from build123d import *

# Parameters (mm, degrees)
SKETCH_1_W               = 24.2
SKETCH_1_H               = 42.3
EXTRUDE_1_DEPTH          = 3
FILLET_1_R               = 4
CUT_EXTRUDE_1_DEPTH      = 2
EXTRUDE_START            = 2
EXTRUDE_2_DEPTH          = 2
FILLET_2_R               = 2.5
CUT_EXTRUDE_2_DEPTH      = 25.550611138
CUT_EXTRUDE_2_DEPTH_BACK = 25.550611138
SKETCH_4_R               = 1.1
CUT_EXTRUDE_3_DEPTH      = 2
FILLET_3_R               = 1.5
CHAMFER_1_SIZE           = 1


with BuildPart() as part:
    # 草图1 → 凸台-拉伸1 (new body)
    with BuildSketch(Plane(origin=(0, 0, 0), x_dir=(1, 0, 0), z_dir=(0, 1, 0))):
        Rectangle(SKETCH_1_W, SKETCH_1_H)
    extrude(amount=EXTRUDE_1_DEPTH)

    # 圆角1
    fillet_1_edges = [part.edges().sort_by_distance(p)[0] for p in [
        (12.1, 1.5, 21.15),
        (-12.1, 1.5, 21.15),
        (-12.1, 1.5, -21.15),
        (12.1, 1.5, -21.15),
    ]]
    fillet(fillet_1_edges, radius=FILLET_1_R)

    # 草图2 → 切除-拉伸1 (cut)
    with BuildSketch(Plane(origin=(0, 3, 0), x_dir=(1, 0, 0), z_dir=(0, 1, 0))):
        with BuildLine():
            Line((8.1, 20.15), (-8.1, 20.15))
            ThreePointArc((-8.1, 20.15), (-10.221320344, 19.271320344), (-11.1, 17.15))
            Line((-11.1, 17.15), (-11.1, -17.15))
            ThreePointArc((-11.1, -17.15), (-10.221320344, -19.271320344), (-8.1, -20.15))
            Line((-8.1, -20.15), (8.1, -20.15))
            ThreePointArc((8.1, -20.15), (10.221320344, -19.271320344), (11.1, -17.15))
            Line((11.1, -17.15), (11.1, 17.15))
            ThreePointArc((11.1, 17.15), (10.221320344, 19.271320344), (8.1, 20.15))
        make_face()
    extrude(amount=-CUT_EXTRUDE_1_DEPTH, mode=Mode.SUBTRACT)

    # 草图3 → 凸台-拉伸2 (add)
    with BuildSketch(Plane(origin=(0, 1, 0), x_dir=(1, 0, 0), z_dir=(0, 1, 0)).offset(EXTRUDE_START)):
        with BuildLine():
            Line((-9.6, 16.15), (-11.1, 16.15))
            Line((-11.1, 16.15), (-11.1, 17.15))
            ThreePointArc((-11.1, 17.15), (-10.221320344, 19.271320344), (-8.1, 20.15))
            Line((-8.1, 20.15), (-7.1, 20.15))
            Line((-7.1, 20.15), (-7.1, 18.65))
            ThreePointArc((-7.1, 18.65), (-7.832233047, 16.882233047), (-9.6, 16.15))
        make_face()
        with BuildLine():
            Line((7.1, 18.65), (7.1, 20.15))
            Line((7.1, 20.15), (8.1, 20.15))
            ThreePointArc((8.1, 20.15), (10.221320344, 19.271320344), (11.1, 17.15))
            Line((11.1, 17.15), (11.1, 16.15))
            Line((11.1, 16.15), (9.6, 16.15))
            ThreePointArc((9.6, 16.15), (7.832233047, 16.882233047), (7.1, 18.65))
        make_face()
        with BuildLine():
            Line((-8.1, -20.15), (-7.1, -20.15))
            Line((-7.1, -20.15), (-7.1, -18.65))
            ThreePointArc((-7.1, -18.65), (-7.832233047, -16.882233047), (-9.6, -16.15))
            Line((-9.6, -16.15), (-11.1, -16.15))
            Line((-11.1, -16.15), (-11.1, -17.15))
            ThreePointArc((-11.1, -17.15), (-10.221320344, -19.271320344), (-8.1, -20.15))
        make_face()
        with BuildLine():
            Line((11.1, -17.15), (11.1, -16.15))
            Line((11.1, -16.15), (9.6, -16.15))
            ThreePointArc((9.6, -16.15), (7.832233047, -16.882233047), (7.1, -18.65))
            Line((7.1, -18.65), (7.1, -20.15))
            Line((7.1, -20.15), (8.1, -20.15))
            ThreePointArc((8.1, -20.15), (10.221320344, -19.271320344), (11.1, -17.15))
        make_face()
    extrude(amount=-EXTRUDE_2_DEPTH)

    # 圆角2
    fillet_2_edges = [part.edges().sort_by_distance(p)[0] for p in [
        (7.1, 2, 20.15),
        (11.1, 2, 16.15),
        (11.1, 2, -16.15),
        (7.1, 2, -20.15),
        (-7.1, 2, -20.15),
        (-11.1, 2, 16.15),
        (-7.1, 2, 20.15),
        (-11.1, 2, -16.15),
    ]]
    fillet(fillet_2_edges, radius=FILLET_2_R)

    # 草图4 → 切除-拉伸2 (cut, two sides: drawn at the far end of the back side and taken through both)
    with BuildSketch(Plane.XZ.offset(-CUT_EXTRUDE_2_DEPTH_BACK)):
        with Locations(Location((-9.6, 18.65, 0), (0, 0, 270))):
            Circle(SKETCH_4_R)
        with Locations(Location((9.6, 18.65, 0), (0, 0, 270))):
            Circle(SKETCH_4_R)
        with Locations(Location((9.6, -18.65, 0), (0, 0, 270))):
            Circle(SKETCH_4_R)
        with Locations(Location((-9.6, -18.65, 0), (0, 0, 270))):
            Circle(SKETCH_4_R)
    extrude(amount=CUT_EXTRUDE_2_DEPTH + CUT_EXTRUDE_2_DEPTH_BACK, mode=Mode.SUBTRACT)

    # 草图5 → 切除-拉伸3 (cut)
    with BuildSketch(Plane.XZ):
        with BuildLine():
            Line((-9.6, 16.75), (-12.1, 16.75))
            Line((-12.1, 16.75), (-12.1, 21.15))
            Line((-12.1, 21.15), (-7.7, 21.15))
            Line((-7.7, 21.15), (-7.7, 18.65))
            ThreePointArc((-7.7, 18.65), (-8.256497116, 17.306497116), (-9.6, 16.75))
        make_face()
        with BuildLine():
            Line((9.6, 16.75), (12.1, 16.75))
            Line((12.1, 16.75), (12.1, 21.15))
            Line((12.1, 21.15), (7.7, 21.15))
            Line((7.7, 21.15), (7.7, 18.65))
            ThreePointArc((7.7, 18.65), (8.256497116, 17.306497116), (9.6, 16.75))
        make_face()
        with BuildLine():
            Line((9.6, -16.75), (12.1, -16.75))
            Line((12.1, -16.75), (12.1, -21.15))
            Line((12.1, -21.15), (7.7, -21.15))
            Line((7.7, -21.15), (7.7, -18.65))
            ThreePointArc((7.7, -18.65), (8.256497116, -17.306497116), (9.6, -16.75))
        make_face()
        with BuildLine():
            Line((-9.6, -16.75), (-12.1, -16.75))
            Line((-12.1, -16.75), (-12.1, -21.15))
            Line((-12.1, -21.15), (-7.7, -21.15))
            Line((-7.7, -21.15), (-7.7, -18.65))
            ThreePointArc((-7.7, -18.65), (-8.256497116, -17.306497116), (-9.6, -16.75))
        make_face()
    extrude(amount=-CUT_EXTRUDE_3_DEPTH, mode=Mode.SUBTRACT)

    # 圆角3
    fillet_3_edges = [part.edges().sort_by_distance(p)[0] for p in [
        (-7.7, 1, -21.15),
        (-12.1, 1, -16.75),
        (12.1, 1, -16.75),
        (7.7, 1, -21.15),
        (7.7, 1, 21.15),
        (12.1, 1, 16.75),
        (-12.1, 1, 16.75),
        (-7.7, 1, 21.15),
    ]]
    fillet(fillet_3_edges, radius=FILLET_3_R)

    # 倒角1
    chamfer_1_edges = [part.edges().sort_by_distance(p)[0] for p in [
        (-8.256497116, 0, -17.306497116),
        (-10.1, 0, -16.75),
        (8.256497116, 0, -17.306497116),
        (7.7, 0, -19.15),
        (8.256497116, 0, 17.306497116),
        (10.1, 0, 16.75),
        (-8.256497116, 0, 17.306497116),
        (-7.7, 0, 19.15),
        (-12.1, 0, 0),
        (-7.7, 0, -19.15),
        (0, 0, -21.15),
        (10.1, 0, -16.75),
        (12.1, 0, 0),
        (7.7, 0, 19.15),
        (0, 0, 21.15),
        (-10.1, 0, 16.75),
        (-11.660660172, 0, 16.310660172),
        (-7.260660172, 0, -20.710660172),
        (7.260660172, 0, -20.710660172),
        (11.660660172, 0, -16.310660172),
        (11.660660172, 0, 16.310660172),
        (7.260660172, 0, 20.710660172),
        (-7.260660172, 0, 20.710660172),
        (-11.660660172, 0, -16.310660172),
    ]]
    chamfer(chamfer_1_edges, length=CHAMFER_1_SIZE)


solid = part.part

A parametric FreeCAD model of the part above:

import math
import FreeCAD as App
import Part
import Sketcher
Q = App.Units.Quantity


def edges_at(feature, points):
    """Names of the edges that pass closest to the given points."""
    edges = feature.Shape.Edges
    near = lambda p: min(range(len(edges)), key=lambda i: edges[i].distToShape(Part.Vertex(*p))[0])
    return sorted({f"Edge{near(p) + 1}" for p in points})


def add_polygon(sketch, points):
    """Adds a closed chain of lines whose ends are joined by coincident constraints."""
    first, n = sketch.GeometryCount, len(points)
    for a, b in zip(points, points[1:] + points[:1]):
        sketch.addGeometry(Part.LineSegment(App.Vector(*a, 0), App.Vector(*b, 0)), False)
    for i in range(n):
        sketch.addConstraint(Sketcher.Constraint("Coincident", first + i, 2, first + (i + 1) % n, 1))

doc = App.newDocument("Part")
params = doc.addObject("Spreadsheet::Sheet", "Params")
for row, (alias, value) in enumerate([
    ("sketch1_width", "24.2 mm"),
    ("sketch1_height", "42.3 mm"),
    ("pad1_length", "3 mm"),
    ("fillet_radius", "4 mm"),
    ("sketch2_radius", "3 mm"),
    ("sketch2_width", "16.2 mm"),
    ("sketch2_height", "34.3 mm"),
    ("pocket1_length", "2 mm"),
    ("sketch3_radius", "3 mm"),
    ("sketch3_radius2", "2.5 mm"),
    ("sketch3_width", "1 mm"),
    ("pad2_length", "2 mm"),
    ("fillet2_radius", "2.5 mm"),
    ("sketch4_diameter", "2.2 mm"),
    ("sketch5_radius", "1.9 mm"),
    ("sketch5_width", "2.5 mm"),
    ("pocket3_length", "2 mm"),
    ("fillet3_radius", "1.5 mm"),
    ("chamfer_size", "1 mm"),
], start=1):
    params.set(f"A{row}", alias)
    params.set(f"B{row}", "=" + value)
    params.setAlias(f"B{row}", alias)

body = doc.addObject("PartDesign::Body", "Body")

# Sketch on XZ plane
sketch1 = body.newObject("Sketcher::SketchObject", "Sketch")
sketch1.AttachmentSupport = (doc.getObject("XZ_Plane"), [""])
sketch1.MapMode = "FlatFace"
add_polygon(sketch1, [(-12, -21), (-12, 21), (12, 21), (12, -21)])  # lines 0-3
sketch1.addConstraint(Sketcher.Constraint("Vertical", 0))
sketch1.addConstraint(Sketcher.Constraint("Horizontal", 1))
sketch1.addConstraint(Sketcher.Constraint("Vertical", 2))
sketch1.addConstraint(Sketcher.Constraint("Horizontal", 3))
sketch1.addConstraint(Sketcher.Constraint("Symmetric", 0, 2, 2, 2, -1, 1))
sketch1.addConstraint(Sketcher.Constraint("DistanceX", 1, 1, 1, 2, Q("24.2 mm")))
sketch1.addConstraint(Sketcher.Constraint("DistanceY", 0, 1, 0, 2, Q("42.3 mm")))
sketch1.setExpression("Constraints[9]", "Params.sketch1_width")
sketch1.setExpression("Constraints[10]", "Params.sketch1_height")
pad1 = body.newObject("PartDesign::Pad", "Pad")
pad1.Profile = sketch1
pad1.setExpression("Length", "Params.pad1_length")
pad1.Reversed = True
doc.recompute()

fillet = body.newObject("PartDesign::Fillet", "Fillet")
fillet.Base = (pad1, edges_at(pad1, [
    (12.1, 1.5, 21.15),
    (-12.1, 1.5, 21.15),
    (-12.1, 1.5, -21.15),
    (12.1, 1.5, -21.15),
]))
fillet.setExpression("Radius", "Params.fillet_radius")

# Sketch on XZ plane
sketch2 = body.newObject("Sketcher::SketchObject", "Sketch001")
sketch2.AttachmentSupport = (doc.getObject("XZ_Plane"), [""])
sketch2.MapMode = "FlatFace"
sketch2.AttachmentOffset = App.Placement(App.Vector(0, 0, -3), App.Rotation())
sketch2.addGeometry(Part.LineSegment(App.Vector(8.1, -20.1, 0), App.Vector(-8.1, -20.1, 0)), False)
sketch2.addGeometry(Part.ArcOfCircle(Part.Circle(App.Vector(-8.1, -17.2, 0), App.Vector(0, 0, 1), 3), math.radians(180), math.radians(270)), False)
sketch2.addGeometry(Part.LineSegment(App.Vector(-11.1, -17.1, 0), App.Vector(-11.1, 17.1, 0)), False)
sketch2.addGeometry(Part.ArcOfCircle(Part.Circle(App.Vector(-8.1, 17.2, 0), App.Vector(0, 0, 1), 3), math.radians(90), math.radians(180)), False)
sketch2.addGeometry(Part.LineSegment(App.Vector(-8.1, 20.1, 0), App.Vector(8.1, 20.1, 0)), False)
sketch2.addGeometry(Part.ArcOfCircle(Part.Circle(App.Vector(8.1, 17.2, 0), App.Vector(0, 0, 1), 3), math.radians(0), math.radians(90)), False)
sketch2.addGeometry(Part.LineSegment(App.Vector(11.1, 17.1, 0), App.Vector(11.1, -17.1, 0)), False)
sketch2.addGeometry(Part.ArcOfCircle(Part.Circle(App.Vector(8.1, -17.2, 0), App.Vector(0, 0, 1), 3), math.radians(-90), math.radians(0)), False)
sketch2.addConstraint(Sketcher.Constraint("Tangent", 0, 2, 1, 2))
sketch2.addConstraint(Sketcher.Constraint("Tangent", 1, 1, 2, 1))
sketch2.addConstraint(Sketcher.Constraint("Tangent", 2, 2, 3, 2))
sketch2.addConstraint(Sketcher.Constraint("Tangent", 3, 1, 4, 1))
sketch2.addConstraint(Sketcher.Constraint("Tangent", 4, 2, 5, 2))
sketch2.addConstraint(Sketcher.Constraint("Tangent", 5, 1, 6, 1))
sketch2.addConstraint(Sketcher.Constraint("Tangent", 6, 2, 7, 2))
sketch2.addConstraint(Sketcher.Constraint("Tangent", 7, 1, 0, 1))
sketch2.addConstraint(Sketcher.Constraint("Horizontal", 0))
sketch2.addConstraint(Sketcher.Constraint("Vertical", 2))
sketch2.addConstraint(Sketcher.Constraint("Horizontal", 4))
sketch2.addConstraint(Sketcher.Constraint("Vertical", 6))
sketch2.addConstraint(Sketcher.Constraint("Equal", 1, 3))
sketch2.addConstraint(Sketcher.Constraint("Equal", 3, 5))
sketch2.addConstraint(Sketcher.Constraint("Equal", 5, 7))
sketch2.addConstraint(Sketcher.Constraint("Symmetric", 1, 3, 5, 3, -1, 1))
sketch2.addConstraint(Sketcher.Constraint("Radius", 1, Q("3 mm")))
sketch2.addConstraint(Sketcher.Constraint("DistanceX", 0, 2, 0, 1, Q("16.2 mm")))
sketch2.addConstraint(Sketcher.Constraint("DistanceY", 2, 1, 2, 2, Q("34.3 mm")))
sketch2.setExpression("Constraints[16]", "Params.sketch2_radius")
sketch2.setExpression("Constraints[17]", "Params.sketch2_width")
sketch2.setExpression("Constraints[18]", "Params.sketch2_height")
pocket1 = body.newObject("PartDesign::Pocket", "Pocket")
pocket1.Profile = sketch2
pocket1.setExpression("Length", "Params.pocket1_length")
pocket1.Reversed = True

# Sketch on XZ plane
sketch3 = body.newObject("Sketcher::SketchObject", "Sketch002")
sketch3.AttachmentSupport = (doc.getObject("XZ_Plane"), [""])
sketch3.MapMode = "FlatFace"
sketch3.AttachmentOffset = App.Placement(App.Vector(0, 0, -3), App.Rotation())
sketch3.addGeometry(Part.LineSegment(App.Vector(-11.1, -16.1, 0), App.Vector(-9.6, -16.1, 0)), False)
sketch3.addGeometry(Part.ArcOfCircle(Part.Circle(App.Vector(-9.6, -18.6, 0), App.Vector(0, 0, 1), 2.5), math.radians(0), math.radians(90)), False)
sketch3.addGeometry(Part.LineSegment(App.Vector(-7.1, -18.6, 0), App.Vector(-7.1, -20.1, 0)), False)
sketch3.addGeometry(Part.LineSegment(App.Vector(-7.1, -20.1, 0), App.Vector(-8.1, -20.1, 0)), False)
sketch3.addGeometry(Part.ArcOfCircle(Part.Circle(App.Vector(-8.1, -17.2, 0), App.Vector(0, 0, 1), 3), math.radians(180), math.radians(270)), False)
sketch3.addGeometry(Part.LineSegment(App.Vector(-11.1, -17.1, 0), App.Vector(-11.1, -16.1, 0)), False)
sketch3.addGeometry(Part.LineSegment(App.Vector(7.1, -20.1, 0), App.Vector(7.1, -18.6, 0)), False)
sketch3.addGeometry(Part.ArcOfCircle(Part.Circle(App.Vector(9.6, -18.6, 0), App.Vector(0, 0, 1), 2.5), math.radians(90), math.radians(180)), False)
sketch3.addGeometry(Part.LineSegment(App.Vector(9.6, -16.1, 0), App.Vector(11.1, -16.1, 0)), False)
sketch3.addGeometry(Part.LineSegment(App.Vector(11.1, -16.1, 0), App.Vector(11.1, -17.1, 0)), False)
sketch3.addGeometry(Part.ArcOfCircle(Part.Circle(App.Vector(8.1, -17.2, 0), App.Vector(0, 0, 1), 3), math.radians(-90), math.radians(0)), False)
sketch3.addGeometry(Part.LineSegment(App.Vector(8.1, -20.1, 0), App.Vector(7.1, -20.1, 0)), False)
sketch3.addGeometry(Part.LineSegment(App.Vector(-8.1, 20.1, 0), App.Vector(-7.1, 20.1, 0)), False)
sketch3.addGeometry(Part.LineSegment(App.Vector(-7.1, 20.1, 0), App.Vector(-7.1, 18.6, 0)), False)
sketch3.addGeometry(Part.ArcOfCircle(Part.Circle(App.Vector(-9.6, 18.6, 0), App.Vector(0, 0, 1), 2.5), math.radians(-90), math.radians(0)), False)
sketch3.addGeometry(Part.LineSegment(App.Vector(-9.6, 16.1, 0), App.Vector(-11.1, 16.1, 0)), False)
sketch3.addGeometry(Part.LineSegment(App.Vector(-11.1, 16.1, 0), App.Vector(-11.1, 17.1, 0)), False)
sketch3.addGeometry(Part.ArcOfCircle(Part.Circle(App.Vector(-8.1, 17.2, 0), App.Vector(0, 0, 1), 3), math.radians(90), math.radians(180)), False)
sketch3.addGeometry(Part.LineSegment(App.Vector(11.1, 17.1, 0), App.Vector(11.1, 16.1, 0)), False)
sketch3.addGeometry(Part.LineSegment(App.Vector(11.1, 16.1, 0), App.Vector(9.6, 16.1, 0)), False)
sketch3.addGeometry(Part.ArcOfCircle(Part.Circle(App.Vector(9.6, 18.6, 0), App.Vector(0, 0, 1), 2.5), math.radians(180), math.radians(270)), False)
sketch3.addGeometry(Part.LineSegment(App.Vector(7.1, 18.6, 0), App.Vector(7.1, 20.1, 0)), False)
sketch3.addGeometry(Part.LineSegment(App.Vector(7.1, 20.1, 0), App.Vector(8.1, 20.1, 0)), False)
sketch3.addGeometry(Part.ArcOfCircle(Part.Circle(App.Vector(8.1, 17.2, 0), App.Vector(0, 0, 1), 3), math.radians(0), math.radians(90)), False)
sketch3.addConstraint(Sketcher.Constraint("Tangent", 0, 2, 1, 2))
sketch3.addConstraint(Sketcher.Constraint("Tangent", 1, 1, 2, 1))
sketch3.addConstraint(Sketcher.Constraint("Coincident", 2, 2, 3, 1))
sketch3.addConstraint(Sketcher.Constraint("Tangent", 3, 2, 4, 2))
sketch3.addConstraint(Sketcher.Constraint("Tangent", 4, 1, 5, 1))
sketch3.addConstraint(Sketcher.Constraint("Coincident", 5, 2, 0, 1))
sketch3.addConstraint(Sketcher.Constraint("Tangent", 6, 2, 7, 2))
sketch3.addConstraint(Sketcher.Constraint("Tangent", 7, 1, 8, 1))
sketch3.addConstraint(Sketcher.Constraint("Coincident", 8, 2, 9, 1))
sketch3.addConstraint(Sketcher.Constraint("Tangent", 9, 2, 10, 2))
sketch3.addConstraint(Sketcher.Constraint("Tangent", 10, 1, 11, 1))
sketch3.addConstraint(Sketcher.Constraint("Coincident", 11, 2, 6, 1))
sketch3.addConstraint(Sketcher.Constraint("Coincident", 12, 2, 13, 1))
sketch3.addConstraint(Sketcher.Constraint("Tangent", 13, 2, 14, 2))
sketch3.addConstraint(Sketcher.Constraint("Tangent", 14, 1, 15, 1))
sketch3.addConstraint(Sketcher.Constraint("Coincident", 15, 2, 16, 1))
sketch3.addConstraint(Sketcher.Constraint("Tangent", 16, 2, 17, 2))
sketch3.addConstraint(Sketcher.Constraint("Tangent", 17, 1, 12, 1))
sketch3.addConstraint(Sketcher.Constraint("Coincident", 18, 2, 19, 1))
sketch3.addConstraint(Sketcher.Constraint("Tangent", 19, 2, 20, 2))
sketch3.addConstraint(Sketcher.Constraint("Tangent", 20, 1, 21, 1))
sketch3.addConstraint(Sketcher.Constraint("Coincident", 21, 2, 22, 1))
sketch3.addConstraint(Sketcher.Constraint("Tangent", 22, 2, 23, 2))
sketch3.addConstraint(Sketcher.Constraint("Tangent", 23, 1, 18, 1))
sketch3.addConstraint(Sketcher.Constraint("Horizontal", 0))
sketch3.addConstraint(Sketcher.Constraint("Vertical", 2))
sketch3.addConstraint(Sketcher.Constraint("Horizontal", 3))
sketch3.addConstraint(Sketcher.Constraint("Vertical", 5))
sketch3.addConstraint(Sketcher.Constraint("Vertical", 6))
sketch3.addConstraint(Sketcher.Constraint("Horizontal", 8))
sketch3.addConstraint(Sketcher.Constraint("Vertical", 9))
sketch3.addConstraint(Sketcher.Constraint("Horizontal", 11))
sketch3.addConstraint(Sketcher.Constraint("Horizontal", 12))
sketch3.addConstraint(Sketcher.Constraint("Vertical", 13))
sketch3.addConstraint(Sketcher.Constraint("Horizontal", 15))
sketch3.addConstraint(Sketcher.Constraint("Vertical", 16))
sketch3.addConstraint(Sketcher.Constraint("Vertical", 18))
sketch3.addConstraint(Sketcher.Constraint("Horizontal", 19))
sketch3.addConstraint(Sketcher.Constraint("Vertical", 21))
sketch3.addConstraint(Sketcher.Constraint("Horizontal", 22))
sketch3.addConstraint(Sketcher.Constraint("Equal", 1, 7))
sketch3.addConstraint(Sketcher.Constraint("Equal", 4, 10))
sketch3.addConstraint(Sketcher.Constraint("Equal", 7, 14))
sketch3.addConstraint(Sketcher.Constraint("Equal", 10, 17))
sketch3.addConstraint(Sketcher.Constraint("Equal", 14, 20))
sketch3.addConstraint(Sketcher.Constraint("Equal", 17, 23))
sketch3.addConstraint(Sketcher.Constraint("Symmetric", 7, 3, 14, 3, -1, 1))
sketch3.addConstraint(Sketcher.Constraint("Symmetric", 10, 3, 17, 3, -1, 1))
sketch3.addConstraint(Sketcher.Constraint("Symmetric", 1, 3, 20, 3, -1, 1))
sketch3.addConstraint(Sketcher.Constraint("Symmetric", 4, 3, 23, 3, -1, 1))
sketch3.addConstraint(Sketcher.Constraint("Symmetric", 1, 3, 7, 3, -2))
sketch3.addConstraint(Sketcher.Constraint("Symmetric", 4, 3, 10, 3, -2))
sketch3.addConstraint(Sketcher.Constraint("Equal", 19, 2))
sketch3.addConstraint(Sketcher.Constraint("Radius", 4, Q("3 mm")))
sketch3.addConstraint(Sketcher.Constraint("Radius", 1, Q("2.5 mm")))
sketch3.addConstraint(Sketcher.Constraint("DistanceX", 3, 2, 3, 1, Q("1 mm")))
sketch3.addConstraint(Sketcher.Constraint("DistanceX", 1, 3, -1, 1, Q("9.6 mm")))
sketch3.addConstraint(Sketcher.Constraint("DistanceY", 4, 3, 14, 3, Q("35.8 mm")))
sketch3.setExpression("Constraints[53]", "Params.sketch3_radius")
sketch3.setExpression("Constraints[54]", "Params.sketch3_radius2")
sketch3.setExpression("Constraints[55]", "Params.sketch3_width")
pad2 = body.newObject("PartDesign::Pad", "Pad001")
pad2.Profile = sketch3
pad2.setExpression("Length", "Params.pad2_length")
doc.recompute()

fillet2 = body.newObject("PartDesign::Fillet", "Fillet001")
fillet2.Base = (pad2, edges_at(pad2, [
    (7.1, 2, 20.15),
    (11.1, 2, 16.15),
    (11.1, 2, -16.15),
    (7.1, 2, -20.15),
    (-7.1, 2, -20.15),
    (-11.1, 2, 16.15),
    (-7.1, 2, 20.15),
    (-11.1, 2, -16.15),
]))
fillet2.setExpression("Radius", "Params.fillet2_radius")

# Sketch on XZ plane
sketch4 = body.newObject("Sketcher::SketchObject", "Sketch003")
sketch4.AttachmentSupport = (doc.getObject("XZ_Plane"), [""])
sketch4.MapMode = "FlatFace"
sketch4.addGeometry(Part.Circle(App.Vector(-9.6, 18.6, 0), App.Vector(0, 0, 1), 1.1), False)
sketch4.addGeometry(Part.Circle(App.Vector(9.6, 18.6, 0), App.Vector(0, 0, 1), 1.1), False)
sketch4.addGeometry(Part.Circle(App.Vector(9.6, -18.6, 0), App.Vector(0, 0, 1), 1.1), False)
sketch4.addGeometry(Part.Circle(App.Vector(-9.6, -18.6, 0), App.Vector(0, 0, 1), 1.1), False)
sketch4.addConstraint(Sketcher.Constraint("Equal", 0, 1))
sketch4.addConstraint(Sketcher.Constraint("Equal", 1, 2))
sketch4.addConstraint(Sketcher.Constraint("Equal", 2, 3))
sketch4.addConstraint(Sketcher.Constraint("Symmetric", 0, 3, 2, 3, -1, 1))
sketch4.addConstraint(Sketcher.Constraint("Symmetric", 1, 3, 3, 3, -1, 1))
sketch4.addConstraint(Sketcher.Constraint("Symmetric", 0, 3, 1, 3, -2))
sketch4.addConstraint(Sketcher.Constraint("Diameter", 0, Q("2.2 mm")))
sketch4.addConstraint(Sketcher.Constraint("DistanceX", 0, 3, -1, 1, Q("9.6 mm")))
sketch4.addConstraint(Sketcher.Constraint("DistanceY", 2, 3, 1, 3, Q("37.3 mm")))
sketch4.setExpression("Constraints[6]", "Params.sketch4_diameter")
pocket2 = body.newObject("PartDesign::Pocket", "Pocket001")
pocket2.Profile = sketch4
pocket2.Type = "ThroughAll"
pocket2.Midplane = True

# Sketch on XZ plane
sketch5 = body.newObject("Sketcher::SketchObject", "Sketch004")
sketch5.AttachmentSupport = (doc.getObject("XZ_Plane"), [""])
sketch5.MapMode = "FlatFace"
sketch5.addGeometry(Part.LineSegment(App.Vector(-12.1, 16.8, 0), App.Vector(-9.6, 16.8, 0)), False)
sketch5.addGeometry(Part.ArcOfCircle(Part.Circle(App.Vector(-9.6, 18.7, 0), App.Vector(0, 0, 1), 1.9), math.radians(-90), math.radians(0)), False)
sketch5.addGeometry(Part.LineSegment(App.Vector(-7.7, 18.6, 0), App.Vector(-7.7, 21.1, 0)), False)
sketch5.addGeometry(Part.LineSegment(App.Vector(-7.7, 21.1, 0), App.Vector(-12.1, 21.1, 0)), False)
sketch5.addGeometry(Part.LineSegment(App.Vector(-12.1, 21.1, 0), App.Vector(-12.1, 16.8, 0)), False)
sketch5.addGeometry(Part.LineSegment(App.Vector(9.6, 16.8, 0), App.Vector(12.1, 16.8, 0)), False)
sketch5.addGeometry(Part.LineSegment(App.Vector(12.1, 16.8, 0), App.Vector(12.1, 21.1, 0)), False)
sketch5.addGeometry(Part.LineSegment(App.Vector(12.1, 21.1, 0), App.Vector(7.7, 21.1, 0)), False)
sketch5.addGeometry(Part.LineSegment(App.Vector(7.7, 21.1, 0), App.Vector(7.7, 18.6, 0)), False)
sketch5.addGeometry(Part.ArcOfCircle(Part.Circle(App.Vector(9.6, 18.7, 0), App.Vector(0, 0, 1), 1.9), math.radians(-180), math.radians(-90)), False)
sketch5.addGeometry(Part.LineSegment(App.Vector(12.1, -16.8, 0), App.Vector(9.6, -16.8, 0)), False)
sketch5.addGeometry(Part.ArcOfCircle(Part.Circle(App.Vector(9.6, -18.7, 0), App.Vector(0, 0, 1), 1.9), math.radians(90), math.radians(180)), False)
sketch5.addGeometry(Part.LineSegment(App.Vector(7.7, -18.6, 0), App.Vector(7.7, -21.1, 0)), False)
sketch5.addGeometry(Part.LineSegment(App.Vector(7.7, -21.1, 0), App.Vector(12.1, -21.1, 0)), False)
sketch5.addGeometry(Part.LineSegment(App.Vector(12.1, -21.1, 0), App.Vector(12.1, -16.8, 0)), False)
sketch5.addGeometry(Part.LineSegment(App.Vector(-9.6, -16.8, 0), App.Vector(-12.1, -16.8, 0)), False)
sketch5.addGeometry(Part.LineSegment(App.Vector(-12.1, -16.8, 0), App.Vector(-12.1, -21.1, 0)), False)
sketch5.addGeometry(Part.LineSegment(App.Vector(-12.1, -21.1, 0), App.Vector(-7.7, -21.1, 0)), False)
sketch5.addGeometry(Part.LineSegment(App.Vector(-7.7, -21.1, 0), App.Vector(-7.7, -18.6, 0)), False)
sketch5.addGeometry(Part.ArcOfCircle(Part.Circle(App.Vector(-9.6, -18.7, 0), App.Vector(0, 0, 1), 1.9), math.radians(0), math.radians(90)), False)
sketch5.addConstraint(Sketcher.Constraint("Tangent", 0, 2, 1, 1))
sketch5.addConstraint(Sketcher.Constraint("Tangent", 1, 2, 2, 1))
sketch5.addConstraint(Sketcher.Constraint("Coincident", 2, 2, 3, 1))
sketch5.addConstraint(Sketcher.Constraint("Coincident", 3, 2, 4, 1))
sketch5.addConstraint(Sketcher.Constraint("Coincident", 4, 2, 0, 1))
sketch5.addConstraint(Sketcher.Constraint("Coincident", 5, 2, 6, 1))
sketch5.addConstraint(Sketcher.Constraint("Coincident", 6, 2, 7, 1))
sketch5.addConstraint(Sketcher.Constraint("Coincident", 7, 2, 8, 1))
sketch5.addConstraint(Sketcher.Constraint("Tangent", 8, 2, 9, 1))
sketch5.addConstraint(Sketcher.Constraint("Tangent", 9, 2, 5, 1))
sketch5.addConstraint(Sketcher.Constraint("Tangent", 10, 2, 11, 1))
sketch5.addConstraint(Sketcher.Constraint("Tangent", 11, 2, 12, 1))
sketch5.addConstraint(Sketcher.Constraint("Coincident", 12, 2, 13, 1))
sketch5.addConstraint(Sketcher.Constraint("Coincident", 13, 2, 14, 1))
sketch5.addConstraint(Sketcher.Constraint("Coincident", 14, 2, 10, 1))
sketch5.addConstraint(Sketcher.Constraint("Coincident", 15, 2, 16, 1))
sketch5.addConstraint(Sketcher.Constraint("Coincident", 16, 2, 17, 1))
sketch5.addConstraint(Sketcher.Constraint("Coincident", 17, 2, 18, 1))
sketch5.addConstraint(Sketcher.Constraint("Tangent", 18, 2, 19, 1))
sketch5.addConstraint(Sketcher.Constraint("Tangent", 19, 2, 15, 1))
sketch5.addConstraint(Sketcher.Constraint("Horizontal", 0))
sketch5.addConstraint(Sketcher.Constraint("Vertical", 2))
sketch5.addConstraint(Sketcher.Constraint("Horizontal", 3))
sketch5.addConstraint(Sketcher.Constraint("Vertical", 4))
sketch5.addConstraint(Sketcher.Constraint("Horizontal", 5))
sketch5.addConstraint(Sketcher.Constraint("Vertical", 6))
sketch5.addConstraint(Sketcher.Constraint("Horizontal", 7))
sketch5.addConstraint(Sketcher.Constraint("Vertical", 8))
sketch5.addConstraint(Sketcher.Constraint("Horizontal", 10))
sketch5.addConstraint(Sketcher.Constraint("Vertical", 12))
sketch5.addConstraint(Sketcher.Constraint("Horizontal", 13))
sketch5.addConstraint(Sketcher.Constraint("Vertical", 14))
sketch5.addConstraint(Sketcher.Constraint("Horizontal", 15))
sketch5.addConstraint(Sketcher.Constraint("Vertical", 16))
sketch5.addConstraint(Sketcher.Constraint("Horizontal", 17))
sketch5.addConstraint(Sketcher.Constraint("Vertical", 18))
sketch5.addConstraint(Sketcher.Constraint("Equal", 1, 9))
sketch5.addConstraint(Sketcher.Constraint("Equal", 9, 11))
sketch5.addConstraint(Sketcher.Constraint("Equal", 11, 19))
sketch5.addConstraint(Sketcher.Constraint("Symmetric", 1, 3, 11, 3, -1, 1))
sketch5.addConstraint(Sketcher.Constraint("Symmetric", 9, 3, 19, 3, -1, 1))
sketch5.addConstraint(Sketcher.Constraint("Symmetric", 3, 2, 13, 2, -1, 1))
sketch5.addConstraint(Sketcher.Constraint("Symmetric", 6, 2, 16, 2, -1, 1))
sketch5.addConstraint(Sketcher.Constraint("Symmetric", 1, 3, 9, 3, -2))
sketch5.addConstraint(Sketcher.Constraint("Symmetric", 3, 2, 6, 2, -2))
sketch5.addConstraint(Sketcher.Constraint("Equal", 15, 2))
sketch5.addConstraint(Sketcher.Constraint("Radius", 1, Q("1.9 mm")))
sketch5.addConstraint(Sketcher.Constraint("DistanceX", 0, 1, 0, 2, Q("2.5 mm")))
sketch5.addConstraint(Sketcher.Constraint("DistanceX", 1, 3, -1, 1, Q("9.6 mm")))
sketch5.addConstraint(Sketcher.Constraint("DistanceY", 11, 3, 9, 3, Q("37.3 mm")))
sketch5.setExpression("Constraints[46]", "Params.sketch5_radius")
sketch5.setExpression("Constraints[47]", "Params.sketch5_width")
pocket3 = body.newObject("PartDesign::Pocket", "Pocket002")
pocket3.Profile = sketch5
pocket3.setExpression("Length", "Params.pocket3_length")
doc.recompute()

fillet3 = body.newObject("PartDesign::Fillet", "Fillet002")
fillet3.Base = (pocket3, edges_at(pocket3, [
    (-7.7, 1, -21.15),
    (-12.1, 1, -16.75),
    (12.1, 1, -16.75),
    (7.7, 1, -21.15),
    (7.7, 1, 21.15),
    (12.1, 1, 16.75),
    (-12.1, 1, 16.75),
    (-7.7, 1, 21.15),
]))
fillet3.setExpression("Radius", "Params.fillet3_radius")
doc.recompute()

chamfer = body.newObject("PartDesign::Chamfer", "Chamfer")
chamfer.Base = (fillet3, edges_at(fillet3, [
    (-8.256, 0, -17.306),
    (-10.1, 0, -16.75),
    (8.256, 0, -17.306),
    (7.7, 0, -19.15),
    (8.256, 0, 17.306),
    (10.1, 0, 16.75),
    (-8.256, 0, 17.306),
    (-7.7, 0, 19.15),
    (-12.1, 0, 0),
    (-7.7, 0, -19.15),
    (0, 0, -21.15),
    (10.1, 0, -16.75),
    (12.1, 0, 0),
    (7.7, 0, 19.15),
    (0, 0, 21.15),
    (-10.1, 0, 16.75),
    (-11.661, 0, 16.311),
    (-7.261, 0, -20.711),
    (7.261, 0, -20.711),
    (11.661, 0, -16.311),
    (11.661, 0, 16.311),
    (7.261, 0, 20.711),
    (-7.261, 0, 20.711),
    (-11.661, 0, -16.311),
]))
chamfer.setExpression("Size", "Params.chamfer_size")

doc.recompute()
